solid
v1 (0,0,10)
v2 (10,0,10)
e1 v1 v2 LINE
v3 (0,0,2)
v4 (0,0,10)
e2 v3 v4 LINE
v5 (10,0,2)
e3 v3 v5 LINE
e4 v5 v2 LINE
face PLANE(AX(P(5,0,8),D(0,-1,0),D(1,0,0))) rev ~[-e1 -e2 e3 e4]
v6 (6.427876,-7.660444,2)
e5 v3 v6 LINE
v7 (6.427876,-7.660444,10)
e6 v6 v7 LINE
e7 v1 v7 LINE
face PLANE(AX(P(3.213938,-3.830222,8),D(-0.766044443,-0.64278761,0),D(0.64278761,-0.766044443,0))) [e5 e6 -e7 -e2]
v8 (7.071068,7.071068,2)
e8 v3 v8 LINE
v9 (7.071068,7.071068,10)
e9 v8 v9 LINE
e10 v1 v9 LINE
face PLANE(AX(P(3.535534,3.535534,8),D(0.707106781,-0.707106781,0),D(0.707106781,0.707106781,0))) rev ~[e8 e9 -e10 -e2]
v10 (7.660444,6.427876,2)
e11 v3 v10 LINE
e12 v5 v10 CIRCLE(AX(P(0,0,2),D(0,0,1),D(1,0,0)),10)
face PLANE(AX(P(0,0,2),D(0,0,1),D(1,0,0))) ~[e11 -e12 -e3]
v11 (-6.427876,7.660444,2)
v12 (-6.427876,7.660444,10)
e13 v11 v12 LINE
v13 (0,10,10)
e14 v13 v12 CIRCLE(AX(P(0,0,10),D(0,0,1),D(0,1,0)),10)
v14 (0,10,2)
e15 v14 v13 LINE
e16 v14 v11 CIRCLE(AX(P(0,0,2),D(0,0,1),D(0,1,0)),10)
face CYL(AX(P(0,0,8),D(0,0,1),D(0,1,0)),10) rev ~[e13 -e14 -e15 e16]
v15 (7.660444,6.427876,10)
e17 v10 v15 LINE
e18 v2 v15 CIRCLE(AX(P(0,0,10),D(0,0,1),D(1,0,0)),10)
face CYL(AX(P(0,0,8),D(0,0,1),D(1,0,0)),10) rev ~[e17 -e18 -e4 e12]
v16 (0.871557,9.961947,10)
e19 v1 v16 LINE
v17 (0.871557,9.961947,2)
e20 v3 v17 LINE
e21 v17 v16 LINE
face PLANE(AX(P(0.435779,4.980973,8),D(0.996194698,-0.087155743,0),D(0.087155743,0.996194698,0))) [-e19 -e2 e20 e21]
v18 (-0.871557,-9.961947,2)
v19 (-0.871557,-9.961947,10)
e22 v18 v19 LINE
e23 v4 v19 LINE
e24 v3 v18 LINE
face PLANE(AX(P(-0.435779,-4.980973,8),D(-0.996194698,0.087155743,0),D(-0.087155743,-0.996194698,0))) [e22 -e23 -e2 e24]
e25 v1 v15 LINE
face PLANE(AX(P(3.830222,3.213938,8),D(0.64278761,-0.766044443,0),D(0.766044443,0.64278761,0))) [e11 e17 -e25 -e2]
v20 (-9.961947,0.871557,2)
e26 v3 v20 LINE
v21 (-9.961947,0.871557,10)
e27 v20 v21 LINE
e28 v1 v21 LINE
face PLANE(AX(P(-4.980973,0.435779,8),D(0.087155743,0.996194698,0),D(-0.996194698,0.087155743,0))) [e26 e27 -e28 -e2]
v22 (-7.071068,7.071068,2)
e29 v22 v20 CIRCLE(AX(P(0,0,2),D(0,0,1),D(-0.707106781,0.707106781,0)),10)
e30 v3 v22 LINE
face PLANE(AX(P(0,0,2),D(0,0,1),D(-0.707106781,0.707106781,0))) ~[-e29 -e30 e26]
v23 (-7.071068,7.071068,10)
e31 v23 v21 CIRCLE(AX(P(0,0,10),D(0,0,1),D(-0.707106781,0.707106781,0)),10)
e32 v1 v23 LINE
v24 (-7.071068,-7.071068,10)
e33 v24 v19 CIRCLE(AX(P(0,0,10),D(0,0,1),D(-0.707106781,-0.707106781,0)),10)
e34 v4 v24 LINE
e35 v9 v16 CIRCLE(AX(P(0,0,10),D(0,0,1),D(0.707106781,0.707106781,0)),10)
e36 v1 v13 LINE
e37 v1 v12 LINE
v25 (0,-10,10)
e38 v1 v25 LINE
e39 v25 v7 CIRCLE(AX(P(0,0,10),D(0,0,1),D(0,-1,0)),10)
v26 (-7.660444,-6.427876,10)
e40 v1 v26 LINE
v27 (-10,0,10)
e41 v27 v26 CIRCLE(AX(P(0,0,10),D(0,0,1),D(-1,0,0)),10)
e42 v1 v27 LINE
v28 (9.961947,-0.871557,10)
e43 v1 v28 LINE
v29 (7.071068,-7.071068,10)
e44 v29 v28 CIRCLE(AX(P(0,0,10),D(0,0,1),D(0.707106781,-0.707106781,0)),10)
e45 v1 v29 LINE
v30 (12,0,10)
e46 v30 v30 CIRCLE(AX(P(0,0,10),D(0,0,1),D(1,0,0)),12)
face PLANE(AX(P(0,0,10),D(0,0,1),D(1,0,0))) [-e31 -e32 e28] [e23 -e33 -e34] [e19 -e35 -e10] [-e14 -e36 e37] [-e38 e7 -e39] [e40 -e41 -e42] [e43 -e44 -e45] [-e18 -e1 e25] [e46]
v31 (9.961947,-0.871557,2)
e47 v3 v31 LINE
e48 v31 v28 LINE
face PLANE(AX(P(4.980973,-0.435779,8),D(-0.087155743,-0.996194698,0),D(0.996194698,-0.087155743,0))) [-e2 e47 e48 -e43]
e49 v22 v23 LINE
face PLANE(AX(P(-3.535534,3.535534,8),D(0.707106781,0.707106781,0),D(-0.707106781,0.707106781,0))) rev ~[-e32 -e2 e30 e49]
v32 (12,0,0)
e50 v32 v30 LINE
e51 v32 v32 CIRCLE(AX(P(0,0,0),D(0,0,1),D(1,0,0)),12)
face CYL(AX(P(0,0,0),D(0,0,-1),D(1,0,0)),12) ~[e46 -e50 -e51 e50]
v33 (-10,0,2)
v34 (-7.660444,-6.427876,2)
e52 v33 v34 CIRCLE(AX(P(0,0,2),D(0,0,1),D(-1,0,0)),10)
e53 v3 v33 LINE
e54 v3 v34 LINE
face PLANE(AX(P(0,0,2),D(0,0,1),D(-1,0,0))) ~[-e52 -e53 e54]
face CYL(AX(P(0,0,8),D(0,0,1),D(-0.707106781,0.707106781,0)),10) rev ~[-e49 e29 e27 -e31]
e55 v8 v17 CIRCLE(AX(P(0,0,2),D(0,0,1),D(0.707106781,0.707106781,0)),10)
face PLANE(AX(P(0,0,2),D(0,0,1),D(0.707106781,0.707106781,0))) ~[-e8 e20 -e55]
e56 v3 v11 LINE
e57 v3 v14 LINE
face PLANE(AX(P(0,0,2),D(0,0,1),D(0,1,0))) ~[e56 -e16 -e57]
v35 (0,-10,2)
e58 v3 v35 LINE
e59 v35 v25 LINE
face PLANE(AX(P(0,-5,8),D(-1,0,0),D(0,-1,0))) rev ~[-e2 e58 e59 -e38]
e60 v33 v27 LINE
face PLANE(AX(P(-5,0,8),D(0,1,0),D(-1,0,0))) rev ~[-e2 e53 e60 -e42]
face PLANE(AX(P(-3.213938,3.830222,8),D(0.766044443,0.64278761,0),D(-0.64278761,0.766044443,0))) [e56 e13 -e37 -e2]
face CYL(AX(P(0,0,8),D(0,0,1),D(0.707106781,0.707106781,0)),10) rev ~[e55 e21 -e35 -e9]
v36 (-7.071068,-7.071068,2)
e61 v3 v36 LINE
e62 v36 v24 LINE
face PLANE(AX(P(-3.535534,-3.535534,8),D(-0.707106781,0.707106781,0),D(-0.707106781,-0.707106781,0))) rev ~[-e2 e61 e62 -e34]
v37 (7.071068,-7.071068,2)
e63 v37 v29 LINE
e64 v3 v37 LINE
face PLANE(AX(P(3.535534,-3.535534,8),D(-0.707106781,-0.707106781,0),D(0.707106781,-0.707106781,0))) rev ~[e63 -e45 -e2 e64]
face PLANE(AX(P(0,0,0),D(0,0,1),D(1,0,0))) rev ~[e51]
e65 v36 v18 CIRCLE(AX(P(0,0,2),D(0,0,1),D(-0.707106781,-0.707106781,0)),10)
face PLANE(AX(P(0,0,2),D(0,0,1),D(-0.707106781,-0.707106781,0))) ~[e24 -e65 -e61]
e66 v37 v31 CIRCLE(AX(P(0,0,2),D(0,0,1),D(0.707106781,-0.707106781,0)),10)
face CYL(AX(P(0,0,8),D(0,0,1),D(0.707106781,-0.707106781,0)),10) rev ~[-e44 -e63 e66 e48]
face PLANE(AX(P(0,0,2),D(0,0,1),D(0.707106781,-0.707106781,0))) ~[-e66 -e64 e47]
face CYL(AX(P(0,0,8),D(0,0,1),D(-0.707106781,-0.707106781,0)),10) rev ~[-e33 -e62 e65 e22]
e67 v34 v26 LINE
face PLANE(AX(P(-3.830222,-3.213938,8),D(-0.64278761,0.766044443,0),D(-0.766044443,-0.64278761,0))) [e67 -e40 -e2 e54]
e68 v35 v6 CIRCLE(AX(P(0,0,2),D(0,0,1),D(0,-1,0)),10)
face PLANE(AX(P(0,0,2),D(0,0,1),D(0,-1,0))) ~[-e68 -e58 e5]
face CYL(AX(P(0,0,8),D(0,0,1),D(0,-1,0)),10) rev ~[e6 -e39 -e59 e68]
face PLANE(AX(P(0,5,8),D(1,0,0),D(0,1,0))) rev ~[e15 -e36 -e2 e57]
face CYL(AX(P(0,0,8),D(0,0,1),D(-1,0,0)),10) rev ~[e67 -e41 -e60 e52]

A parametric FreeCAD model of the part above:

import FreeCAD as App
import Part
import Sketcher

doc = App.newDocument("Part")
body = doc.addObject("PartDesign::Body", "Body")

sketch1 = body.newObject("Sketcher::SketchObject", "Sketch")
sketch1.AttachmentSupport = (doc.getObject("XZ_Plane"), [""])
sketch1.MapMode = "FlatFace"
sketch1.addGeometry([
    Part.LineSegment(App.Vector(0, 14, 0), App.Vector(0, 2, 0)),
    Part.LineSegment(App.Vector(0, 2, 0), App.Vector(10, 2, 0)),
    Part.LineSegment(App.Vector(10, 2, 0), App.Vector(10, 14, 0)),
    Part.LineSegment(App.Vector(10, 14, 0), App.Vector(0, 14, 0)),
], False)
sketch1.addConstraint([
    Sketcher.Constraint("Coincident", 0, 2, 1, 1),
    Sketcher.Constraint("Coincident", 1, 2, 2, 1),
    Sketcher.Constraint("Coincident", 2, 2, 3, 1),
    Sketcher.Constraint("Coincident", 3, 2, 0, 1),
    Sketcher.Constraint("Vertical", 0),
    Sketcher.Constraint("Horizontal", 1),
    Sketcher.Constraint("Vertical", 2),
    Sketcher.Constraint("Horizontal", 3),
    Sketcher.Constraint("PointOnObject", 0, 2, -2),
    Sketcher.Constraint("DistanceX", 1, 1, 1, 2, 10.0),
    Sketcher.Constraint("DistanceY", 0, 2, 0, 1, 12.0),
    Sketcher.Constraint("DistanceY", -1, 1, 0, 2, 2.0),
])
revolution = body.newObject("PartDesign::Revolution", "Revolution")
revolution.Profile = sketch1
revolution.ReferenceAxis = (sketch1, ["V_Axis"])
revolution.Angle = 40
body2 = doc.addObject("PartDesign::Body", "Body001")
body2.AllowCompound = True
doc.recompute()

body2.BaseFeature = body
doc.recompute()

body3 = doc.addObject("PartDesign::Body", "Body002")
body3.BaseFeature = body
body3.Placement = App.Placement(App.Vector(0, 0, 0), App.Rotation(App.Vector(0, 0, 1), 45))
boolean = body2.newObject("PartDesign::Boolean", "Boolean")
boolean.Type = "Fuse"
boolean.addObjects([body3])
doc.recompute()

body4 = doc.addObject("PartDesign::Body", "Body003")
body4.BaseFeature = body
body4.Placement = App.Placement(App.Vector(0, 0, 0), App.Rotation(App.Vector(0, 0, 1), 90))
boolean2 = body2.newObject("PartDesign::Boolean", "Boolean001")
boolean2.Type = "Fuse"
boolean2.addObjects([body4])
doc.recompute()

body5 = doc.addObject("PartDesign::Body", "Body004")
body5.BaseFeature = body
body5.Placement = App.Placement(App.Vector(0, 0, 0), App.Rotation(App.Vector(0, 0, 1), 135))
boolean3 = body2.newObject("PartDesign::Boolean", "Boolean002")
boolean3.Type = "Fuse"
boolean3.addObjects([body5])
doc.recompute()

body6 = doc.addObject("PartDesign::Body", "Body005")
body6.BaseFeature = body
body6.Placement = App.Placement(App.Vector(0, 0, 0), App.Rotation(App.Vector(0, 0, 1), 180))
boolean4 = body2.newObject("PartDesign::Boolean", "Boolean003")
boolean4.Type = "Fuse"
boolean4.addObjects([body6])
doc.recompute()

body7 = doc.addObject("PartDesign::Body", "Body006")
body7.BaseFeature = body
body7.Placement = App.Placement(App.Vector(0, 0, 0), App.Rotation(App.Vector(0, 0, 1), 225))
boolean5 = body2.newObject("PartDesign::Boolean", "Boolean004")
boolean5.Type = "Fuse"
boolean5.addObjects([body7])
doc.recompute()

body8 = doc.addObject("PartDesign::Body", "Body007")
body8.BaseFeature = body
body8.Placement = App.Placement(App.Vector(0, 0, 0), App.Rotation(App.Vector(0, 0, 1), 270))
boolean6 = body2.newObject("PartDesign::Boolean", "Boolean005")
boolean6.Type = "Fuse"
boolean6.addObjects([body8])
doc.recompute()

body.Placement = App.Placement(App.Vector(0, 0, 0), App.Rotation(App.Vector(0, 0, 1), 315))
boolean7 = body2.newObject("PartDesign::Boolean", "Boolean006")
boolean7.Type = "Fuse"
boolean7.addObjects([body])
body9 = doc.addObject("PartDesign::Body", "Body008")

sketch2 = body9.newObject("Sketcher::SketchObject", "Sketch001")
sketch2.AttachmentSupport = (doc.getObject("XY_Plane008"), [""])
sketch2.MapMode = "FlatFace"
sketch2.addGeometry(Part.Circle(App.Vector(0, 0, 0), App.Vector(0, 0, 1), 12), False)
sketch2.addConstraint([
    Sketcher.Constraint("Coincident", 0, 3, -1, 1),
    Sketcher.Constraint("Diameter", 0, 24.0),
])
pad1 = body9.newObject("PartDesign::Pad", "Pad")
pad1.Profile = sketch2
pad1.Length = 10
doc.recompute()

boolean8 = body9.newObject("PartDesign::Boolean", "Boolean007")
boolean8.Type = "Cut"
boolean8.addObjects([body2])

doc.recompute()
